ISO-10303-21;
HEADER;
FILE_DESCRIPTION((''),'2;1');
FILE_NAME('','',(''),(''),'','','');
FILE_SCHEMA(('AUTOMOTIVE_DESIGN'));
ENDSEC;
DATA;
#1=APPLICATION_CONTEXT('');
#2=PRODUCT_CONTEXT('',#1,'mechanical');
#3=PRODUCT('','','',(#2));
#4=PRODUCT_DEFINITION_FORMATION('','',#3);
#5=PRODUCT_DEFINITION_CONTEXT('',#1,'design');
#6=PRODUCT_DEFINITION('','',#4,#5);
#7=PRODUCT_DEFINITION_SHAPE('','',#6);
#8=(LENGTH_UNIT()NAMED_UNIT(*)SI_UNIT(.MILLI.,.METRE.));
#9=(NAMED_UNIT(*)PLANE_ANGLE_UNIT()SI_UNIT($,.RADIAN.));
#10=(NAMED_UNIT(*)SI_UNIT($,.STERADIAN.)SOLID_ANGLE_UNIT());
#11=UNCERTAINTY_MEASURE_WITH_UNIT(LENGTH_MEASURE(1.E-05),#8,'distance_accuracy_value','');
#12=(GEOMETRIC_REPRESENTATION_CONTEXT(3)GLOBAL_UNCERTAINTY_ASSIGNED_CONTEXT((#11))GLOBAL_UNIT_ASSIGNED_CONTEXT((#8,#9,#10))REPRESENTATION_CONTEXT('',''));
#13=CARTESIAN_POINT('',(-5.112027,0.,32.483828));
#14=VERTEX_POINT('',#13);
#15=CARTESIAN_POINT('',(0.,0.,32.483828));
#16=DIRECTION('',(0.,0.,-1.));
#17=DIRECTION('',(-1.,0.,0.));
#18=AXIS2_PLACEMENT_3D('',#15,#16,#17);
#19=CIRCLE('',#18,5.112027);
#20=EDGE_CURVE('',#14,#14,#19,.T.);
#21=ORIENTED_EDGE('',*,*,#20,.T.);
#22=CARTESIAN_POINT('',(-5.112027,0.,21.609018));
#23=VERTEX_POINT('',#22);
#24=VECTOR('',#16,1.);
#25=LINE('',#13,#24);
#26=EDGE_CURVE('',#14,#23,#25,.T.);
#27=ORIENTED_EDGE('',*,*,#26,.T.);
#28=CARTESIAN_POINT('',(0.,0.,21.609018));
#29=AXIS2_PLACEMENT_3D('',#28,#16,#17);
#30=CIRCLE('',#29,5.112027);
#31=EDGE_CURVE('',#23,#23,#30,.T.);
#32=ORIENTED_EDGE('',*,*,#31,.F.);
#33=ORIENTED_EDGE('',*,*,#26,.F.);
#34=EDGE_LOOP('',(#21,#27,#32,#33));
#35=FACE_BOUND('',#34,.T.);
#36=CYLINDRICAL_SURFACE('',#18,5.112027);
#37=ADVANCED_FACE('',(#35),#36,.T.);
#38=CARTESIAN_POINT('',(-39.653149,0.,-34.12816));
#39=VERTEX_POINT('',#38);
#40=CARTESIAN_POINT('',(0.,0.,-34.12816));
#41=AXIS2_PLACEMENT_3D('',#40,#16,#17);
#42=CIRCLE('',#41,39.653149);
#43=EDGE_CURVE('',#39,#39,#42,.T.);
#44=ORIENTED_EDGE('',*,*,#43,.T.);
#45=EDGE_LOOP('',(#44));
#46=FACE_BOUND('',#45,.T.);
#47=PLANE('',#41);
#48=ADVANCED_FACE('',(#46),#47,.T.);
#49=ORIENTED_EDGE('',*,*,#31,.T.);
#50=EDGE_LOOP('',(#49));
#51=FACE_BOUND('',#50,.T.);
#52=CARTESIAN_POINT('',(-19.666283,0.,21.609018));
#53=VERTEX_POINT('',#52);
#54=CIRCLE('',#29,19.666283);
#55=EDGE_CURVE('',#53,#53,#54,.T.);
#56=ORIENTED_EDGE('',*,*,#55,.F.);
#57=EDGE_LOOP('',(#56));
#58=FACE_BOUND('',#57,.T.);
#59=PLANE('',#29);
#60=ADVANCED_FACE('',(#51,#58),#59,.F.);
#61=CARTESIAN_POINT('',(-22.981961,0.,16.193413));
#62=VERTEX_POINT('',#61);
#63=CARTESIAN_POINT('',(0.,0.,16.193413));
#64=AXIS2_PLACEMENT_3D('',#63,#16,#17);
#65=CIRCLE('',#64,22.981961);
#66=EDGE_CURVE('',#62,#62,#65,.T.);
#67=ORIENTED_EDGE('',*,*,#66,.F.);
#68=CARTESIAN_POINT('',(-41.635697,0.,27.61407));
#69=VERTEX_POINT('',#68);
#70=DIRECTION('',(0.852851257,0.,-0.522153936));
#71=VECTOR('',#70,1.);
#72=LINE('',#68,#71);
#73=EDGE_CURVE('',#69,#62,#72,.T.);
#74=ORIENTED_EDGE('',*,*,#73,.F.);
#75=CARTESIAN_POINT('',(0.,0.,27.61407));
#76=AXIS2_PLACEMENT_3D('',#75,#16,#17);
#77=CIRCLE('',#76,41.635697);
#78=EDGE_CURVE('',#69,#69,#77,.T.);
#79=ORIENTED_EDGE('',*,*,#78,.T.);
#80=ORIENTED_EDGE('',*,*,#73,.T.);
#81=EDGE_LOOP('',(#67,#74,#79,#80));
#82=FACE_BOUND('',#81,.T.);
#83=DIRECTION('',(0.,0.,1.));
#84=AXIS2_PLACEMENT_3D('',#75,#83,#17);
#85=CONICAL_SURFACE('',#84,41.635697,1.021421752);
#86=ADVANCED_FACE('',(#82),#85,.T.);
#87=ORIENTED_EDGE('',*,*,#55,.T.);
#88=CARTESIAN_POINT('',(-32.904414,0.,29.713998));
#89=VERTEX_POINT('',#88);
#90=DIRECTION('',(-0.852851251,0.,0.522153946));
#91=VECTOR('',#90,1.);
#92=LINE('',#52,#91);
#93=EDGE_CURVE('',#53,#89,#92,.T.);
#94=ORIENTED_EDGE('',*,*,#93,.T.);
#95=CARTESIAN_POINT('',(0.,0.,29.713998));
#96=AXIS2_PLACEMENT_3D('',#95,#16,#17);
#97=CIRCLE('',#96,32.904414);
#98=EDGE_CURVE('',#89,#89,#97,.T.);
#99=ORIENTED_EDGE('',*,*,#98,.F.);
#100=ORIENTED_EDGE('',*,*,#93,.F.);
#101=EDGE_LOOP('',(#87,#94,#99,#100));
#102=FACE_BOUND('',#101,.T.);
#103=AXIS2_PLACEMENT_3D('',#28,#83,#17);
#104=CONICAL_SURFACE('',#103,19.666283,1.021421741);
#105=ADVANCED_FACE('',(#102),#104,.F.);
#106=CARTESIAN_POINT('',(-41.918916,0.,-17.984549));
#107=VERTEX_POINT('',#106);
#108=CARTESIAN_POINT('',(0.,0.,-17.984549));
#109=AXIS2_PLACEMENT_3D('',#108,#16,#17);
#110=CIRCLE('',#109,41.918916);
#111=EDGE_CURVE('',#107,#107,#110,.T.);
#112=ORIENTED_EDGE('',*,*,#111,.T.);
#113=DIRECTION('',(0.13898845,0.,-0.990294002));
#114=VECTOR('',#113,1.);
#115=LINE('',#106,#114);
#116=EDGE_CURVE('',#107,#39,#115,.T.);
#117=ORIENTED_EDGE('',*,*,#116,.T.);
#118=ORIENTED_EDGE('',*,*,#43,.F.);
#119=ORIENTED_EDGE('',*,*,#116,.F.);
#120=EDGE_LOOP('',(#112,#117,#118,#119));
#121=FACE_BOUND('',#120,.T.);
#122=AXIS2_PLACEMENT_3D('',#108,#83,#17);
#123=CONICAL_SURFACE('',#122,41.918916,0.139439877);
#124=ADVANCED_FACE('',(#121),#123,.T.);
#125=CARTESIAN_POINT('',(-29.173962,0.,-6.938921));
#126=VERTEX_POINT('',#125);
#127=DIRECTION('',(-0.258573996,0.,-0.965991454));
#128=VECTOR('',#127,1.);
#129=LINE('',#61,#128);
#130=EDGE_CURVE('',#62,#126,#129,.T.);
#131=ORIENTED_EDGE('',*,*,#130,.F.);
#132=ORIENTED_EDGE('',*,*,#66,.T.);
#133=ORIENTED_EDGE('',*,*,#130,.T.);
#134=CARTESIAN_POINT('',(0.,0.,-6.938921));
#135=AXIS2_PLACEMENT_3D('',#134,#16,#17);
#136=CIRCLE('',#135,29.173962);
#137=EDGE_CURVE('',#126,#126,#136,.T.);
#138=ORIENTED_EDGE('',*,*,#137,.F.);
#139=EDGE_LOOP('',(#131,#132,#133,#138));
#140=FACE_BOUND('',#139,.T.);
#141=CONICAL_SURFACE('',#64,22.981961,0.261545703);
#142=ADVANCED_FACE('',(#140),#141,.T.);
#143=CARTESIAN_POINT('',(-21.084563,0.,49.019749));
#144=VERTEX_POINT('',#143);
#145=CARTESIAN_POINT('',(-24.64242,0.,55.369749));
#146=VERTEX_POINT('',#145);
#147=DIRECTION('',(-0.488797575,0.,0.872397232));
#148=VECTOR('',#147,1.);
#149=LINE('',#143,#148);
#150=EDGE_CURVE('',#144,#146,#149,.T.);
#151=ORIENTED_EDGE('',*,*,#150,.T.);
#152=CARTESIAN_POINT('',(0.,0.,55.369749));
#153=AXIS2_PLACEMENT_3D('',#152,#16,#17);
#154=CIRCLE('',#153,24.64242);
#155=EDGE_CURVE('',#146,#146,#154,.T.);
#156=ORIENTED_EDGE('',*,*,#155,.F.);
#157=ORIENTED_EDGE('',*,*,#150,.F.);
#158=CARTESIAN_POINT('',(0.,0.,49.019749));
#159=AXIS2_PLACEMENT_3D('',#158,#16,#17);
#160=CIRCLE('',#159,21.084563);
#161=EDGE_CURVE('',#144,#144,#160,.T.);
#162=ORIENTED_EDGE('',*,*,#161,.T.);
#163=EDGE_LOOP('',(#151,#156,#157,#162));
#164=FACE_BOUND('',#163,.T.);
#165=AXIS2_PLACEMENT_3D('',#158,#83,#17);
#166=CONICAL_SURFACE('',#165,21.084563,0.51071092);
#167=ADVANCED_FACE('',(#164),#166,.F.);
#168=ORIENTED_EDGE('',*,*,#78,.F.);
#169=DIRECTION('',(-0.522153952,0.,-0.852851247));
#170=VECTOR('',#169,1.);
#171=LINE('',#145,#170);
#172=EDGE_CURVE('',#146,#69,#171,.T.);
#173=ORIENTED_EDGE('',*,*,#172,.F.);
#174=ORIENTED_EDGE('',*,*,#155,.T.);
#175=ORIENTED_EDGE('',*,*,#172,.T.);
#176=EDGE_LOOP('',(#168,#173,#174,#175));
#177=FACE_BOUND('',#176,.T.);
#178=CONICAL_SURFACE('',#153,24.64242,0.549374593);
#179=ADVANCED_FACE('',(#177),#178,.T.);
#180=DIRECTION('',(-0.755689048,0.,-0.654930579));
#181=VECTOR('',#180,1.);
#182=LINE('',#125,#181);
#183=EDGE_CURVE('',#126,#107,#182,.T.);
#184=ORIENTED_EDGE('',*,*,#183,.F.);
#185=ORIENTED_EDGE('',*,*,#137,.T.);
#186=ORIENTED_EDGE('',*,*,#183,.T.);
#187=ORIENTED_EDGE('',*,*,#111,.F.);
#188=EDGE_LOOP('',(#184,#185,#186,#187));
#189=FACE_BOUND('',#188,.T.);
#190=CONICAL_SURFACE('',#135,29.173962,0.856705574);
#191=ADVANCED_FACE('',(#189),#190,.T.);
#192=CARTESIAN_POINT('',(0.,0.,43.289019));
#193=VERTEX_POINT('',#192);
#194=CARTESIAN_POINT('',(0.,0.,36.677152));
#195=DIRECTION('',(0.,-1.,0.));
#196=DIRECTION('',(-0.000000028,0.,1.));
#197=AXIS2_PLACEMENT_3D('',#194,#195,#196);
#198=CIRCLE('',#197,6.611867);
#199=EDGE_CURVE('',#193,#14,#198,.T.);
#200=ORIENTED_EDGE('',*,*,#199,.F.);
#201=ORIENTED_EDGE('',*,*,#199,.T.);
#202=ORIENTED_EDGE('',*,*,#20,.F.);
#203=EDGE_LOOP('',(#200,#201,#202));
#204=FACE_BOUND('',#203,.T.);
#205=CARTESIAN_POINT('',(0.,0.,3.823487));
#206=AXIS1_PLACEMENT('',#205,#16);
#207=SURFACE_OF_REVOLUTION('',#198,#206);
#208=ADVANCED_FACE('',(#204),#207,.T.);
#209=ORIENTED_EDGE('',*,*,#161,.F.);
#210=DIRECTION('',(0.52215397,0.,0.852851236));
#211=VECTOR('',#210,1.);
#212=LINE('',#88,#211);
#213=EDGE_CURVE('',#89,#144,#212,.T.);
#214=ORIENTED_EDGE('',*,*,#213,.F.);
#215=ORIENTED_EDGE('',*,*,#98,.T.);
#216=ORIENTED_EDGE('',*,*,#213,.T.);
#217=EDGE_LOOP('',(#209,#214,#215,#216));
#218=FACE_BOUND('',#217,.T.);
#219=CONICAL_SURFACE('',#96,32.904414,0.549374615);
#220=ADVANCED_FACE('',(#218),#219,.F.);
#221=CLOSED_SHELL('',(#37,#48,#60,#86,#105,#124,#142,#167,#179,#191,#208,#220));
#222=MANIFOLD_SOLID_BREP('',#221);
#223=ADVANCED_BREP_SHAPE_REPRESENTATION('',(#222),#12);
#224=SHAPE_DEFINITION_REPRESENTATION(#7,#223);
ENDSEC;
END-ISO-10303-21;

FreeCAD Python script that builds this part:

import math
import FreeCAD as App
import Part
import Sketcher

V = App.Vector

doc = App.newDocument("Part")
body = doc.addObject("PartDesign::Body", "Body")

sketch1 = body.newObject("Sketcher::SketchObject", "Sketch")
sketch1.AttachmentSupport = (doc.getObject("XZ_Plane"), [""])
sketch1.MapMode = "FlatFace"
sketch1.addGeometry([
    Part.LineSegment(V(-21, 49, 0), V(-25, 55, 0)),
    Part.LineSegment(V(-25, 55, 0), V(-42, 28, 0)),
    Part.LineSegment(V(-42, 28, 0), V(-23, 16, 0)),
    Part.LineSegment(V(-23, 16, 0), V(-29, -7, 0)),
    Part.LineSegment(V(-29, -7, 0), V(-42, -18, 0)),
    Part.LineSegment(V(-42, -18, 0), V(-40, -34, 0)),
    Part.LineSegment(V(-40, -34, 0), V(0, -34, 0)),
    Part.LineSegment(V(0, -34, 0), V(0, 43, 0)),
    Part.ArcOfCircle(Part.Circle(V(0, 37, 0), V(0, 0, 1), 7), math.radians(90), math.radians(219)),
    Part.LineSegment(V(-5, 32, 0), V(-5, 22, 0)),
    Part.LineSegment(V(-5, 22, 0), V(-20, 22, 0)),
    Part.LineSegment(V(-20, 22, 0), V(-33, 30, 0)),
    Part.LineSegment(V(-33, 30, 0), V(-21, 49, 0)),
], False)
sketch1.addConstraint([
    Sketcher.Constraint("Coincident", 0, 2, 1, 1),
    Sketcher.Constraint("Coincident", 1, 2, 2, 1),
    Sketcher.Constraint("Coincident", 2, 2, 3, 1),
    Sketcher.Constraint("Coincident", 3, 2, 4, 1),
    Sketcher.Constraint("Coincident", 4, 2, 5, 1),
    Sketcher.Constraint("Coincident", 5, 2, 6, 1),
    Sketcher.Constraint("Coincident", 6, 2, 7, 1),
    Sketcher.Constraint("Coincident", 7, 2, 8, 1),
    Sketcher.Constraint("Coincident", 8, 2, 9, 1),
    Sketcher.Constraint("Coincident", 9, 2, 10, 1),
    Sketcher.Constraint("Coincident", 10, 2, 11, 1),
    Sketcher.Constraint("Coincident", 11, 2, 12, 1),
    Sketcher.Constraint("Coincident", 12, 2, 0, 1),
    Sketcher.Constraint("Horizontal", 6),
    Sketcher.Constraint("Vertical", 7),
    Sketcher.Constraint("Vertical", 9),
    Sketcher.Constraint("Horizontal", 10),
    Sketcher.Constraint("PointOnObject", 8, 3, -2),
    Sketcher.Constraint("PointOnObject", 6, 2, -2),
    Sketcher.Constraint("Perpendicular", 1, 2),
    Sketcher.Constraint("Parallel", 2, 11),
    Sketcher.Constraint("Perpendicular", 11, 12),
    Sketcher.Constraint("DistanceY", 9, 2, 7, 2, 21.680001),
    Sketcher.Constraint("DistanceY", 12, 2, 0, 2, 6.35),
    Sketcher.Constraint("DistanceY", -1, 1, 11, 2, 29.713998),
    Sketcher.Constraint("Radius", 8, 6.611867),
    Sketcher.Constraint("DistanceX", 3, 2, 2, 2, 6.192001),
    Sketcher.Constraint("DistanceX", 6, 1, 6, 2, 39.653149),
    Sketcher.Constraint("DistanceY", 7, 1, 7, 2, 77.417179),
    Sketcher.Constraint("DistanceY", 9, 2, 9, 1, 10.87481),
    Sketcher.Constraint("DistanceY", 4, 2, 8, 3, 54.661701),
    Sketcher.Constraint("DistanceY", 4, 2, 0, 2, 73.354298),
    Sketcher.Constraint("Distance", 4, 16.865342),
    Sketcher.Constraint("DistanceX", 10, 2, 10, 1, 14.554256),
    Sketcher.Constraint("DistanceY", -1, 1, 8, 3, 36.677152),
    Sketcher.Constraint("DistanceX", 0, 2, -1, 1, 24.64242),
    Sketcher.Constraint("DistanceY", -1, 1, 1, 2, 27.61407),
    Sketcher.Constraint("DistanceX", 2, 2, -1, 1, 22.981961),
    Sketcher.Constraint("DistanceY", 3, 2, -1, 1, 6.938921),
    Sketcher.Constraint("DistanceY", 2, 2, 8, 3, 20.483739),
])
revolution = body.newObject("PartDesign::Revolution", "Revolution")
revolution.Profile = sketch1
revolution.ReferenceAxis = (sketch1, ["V_Axis"])
revolution.Angle = 360

doc.recompute()
